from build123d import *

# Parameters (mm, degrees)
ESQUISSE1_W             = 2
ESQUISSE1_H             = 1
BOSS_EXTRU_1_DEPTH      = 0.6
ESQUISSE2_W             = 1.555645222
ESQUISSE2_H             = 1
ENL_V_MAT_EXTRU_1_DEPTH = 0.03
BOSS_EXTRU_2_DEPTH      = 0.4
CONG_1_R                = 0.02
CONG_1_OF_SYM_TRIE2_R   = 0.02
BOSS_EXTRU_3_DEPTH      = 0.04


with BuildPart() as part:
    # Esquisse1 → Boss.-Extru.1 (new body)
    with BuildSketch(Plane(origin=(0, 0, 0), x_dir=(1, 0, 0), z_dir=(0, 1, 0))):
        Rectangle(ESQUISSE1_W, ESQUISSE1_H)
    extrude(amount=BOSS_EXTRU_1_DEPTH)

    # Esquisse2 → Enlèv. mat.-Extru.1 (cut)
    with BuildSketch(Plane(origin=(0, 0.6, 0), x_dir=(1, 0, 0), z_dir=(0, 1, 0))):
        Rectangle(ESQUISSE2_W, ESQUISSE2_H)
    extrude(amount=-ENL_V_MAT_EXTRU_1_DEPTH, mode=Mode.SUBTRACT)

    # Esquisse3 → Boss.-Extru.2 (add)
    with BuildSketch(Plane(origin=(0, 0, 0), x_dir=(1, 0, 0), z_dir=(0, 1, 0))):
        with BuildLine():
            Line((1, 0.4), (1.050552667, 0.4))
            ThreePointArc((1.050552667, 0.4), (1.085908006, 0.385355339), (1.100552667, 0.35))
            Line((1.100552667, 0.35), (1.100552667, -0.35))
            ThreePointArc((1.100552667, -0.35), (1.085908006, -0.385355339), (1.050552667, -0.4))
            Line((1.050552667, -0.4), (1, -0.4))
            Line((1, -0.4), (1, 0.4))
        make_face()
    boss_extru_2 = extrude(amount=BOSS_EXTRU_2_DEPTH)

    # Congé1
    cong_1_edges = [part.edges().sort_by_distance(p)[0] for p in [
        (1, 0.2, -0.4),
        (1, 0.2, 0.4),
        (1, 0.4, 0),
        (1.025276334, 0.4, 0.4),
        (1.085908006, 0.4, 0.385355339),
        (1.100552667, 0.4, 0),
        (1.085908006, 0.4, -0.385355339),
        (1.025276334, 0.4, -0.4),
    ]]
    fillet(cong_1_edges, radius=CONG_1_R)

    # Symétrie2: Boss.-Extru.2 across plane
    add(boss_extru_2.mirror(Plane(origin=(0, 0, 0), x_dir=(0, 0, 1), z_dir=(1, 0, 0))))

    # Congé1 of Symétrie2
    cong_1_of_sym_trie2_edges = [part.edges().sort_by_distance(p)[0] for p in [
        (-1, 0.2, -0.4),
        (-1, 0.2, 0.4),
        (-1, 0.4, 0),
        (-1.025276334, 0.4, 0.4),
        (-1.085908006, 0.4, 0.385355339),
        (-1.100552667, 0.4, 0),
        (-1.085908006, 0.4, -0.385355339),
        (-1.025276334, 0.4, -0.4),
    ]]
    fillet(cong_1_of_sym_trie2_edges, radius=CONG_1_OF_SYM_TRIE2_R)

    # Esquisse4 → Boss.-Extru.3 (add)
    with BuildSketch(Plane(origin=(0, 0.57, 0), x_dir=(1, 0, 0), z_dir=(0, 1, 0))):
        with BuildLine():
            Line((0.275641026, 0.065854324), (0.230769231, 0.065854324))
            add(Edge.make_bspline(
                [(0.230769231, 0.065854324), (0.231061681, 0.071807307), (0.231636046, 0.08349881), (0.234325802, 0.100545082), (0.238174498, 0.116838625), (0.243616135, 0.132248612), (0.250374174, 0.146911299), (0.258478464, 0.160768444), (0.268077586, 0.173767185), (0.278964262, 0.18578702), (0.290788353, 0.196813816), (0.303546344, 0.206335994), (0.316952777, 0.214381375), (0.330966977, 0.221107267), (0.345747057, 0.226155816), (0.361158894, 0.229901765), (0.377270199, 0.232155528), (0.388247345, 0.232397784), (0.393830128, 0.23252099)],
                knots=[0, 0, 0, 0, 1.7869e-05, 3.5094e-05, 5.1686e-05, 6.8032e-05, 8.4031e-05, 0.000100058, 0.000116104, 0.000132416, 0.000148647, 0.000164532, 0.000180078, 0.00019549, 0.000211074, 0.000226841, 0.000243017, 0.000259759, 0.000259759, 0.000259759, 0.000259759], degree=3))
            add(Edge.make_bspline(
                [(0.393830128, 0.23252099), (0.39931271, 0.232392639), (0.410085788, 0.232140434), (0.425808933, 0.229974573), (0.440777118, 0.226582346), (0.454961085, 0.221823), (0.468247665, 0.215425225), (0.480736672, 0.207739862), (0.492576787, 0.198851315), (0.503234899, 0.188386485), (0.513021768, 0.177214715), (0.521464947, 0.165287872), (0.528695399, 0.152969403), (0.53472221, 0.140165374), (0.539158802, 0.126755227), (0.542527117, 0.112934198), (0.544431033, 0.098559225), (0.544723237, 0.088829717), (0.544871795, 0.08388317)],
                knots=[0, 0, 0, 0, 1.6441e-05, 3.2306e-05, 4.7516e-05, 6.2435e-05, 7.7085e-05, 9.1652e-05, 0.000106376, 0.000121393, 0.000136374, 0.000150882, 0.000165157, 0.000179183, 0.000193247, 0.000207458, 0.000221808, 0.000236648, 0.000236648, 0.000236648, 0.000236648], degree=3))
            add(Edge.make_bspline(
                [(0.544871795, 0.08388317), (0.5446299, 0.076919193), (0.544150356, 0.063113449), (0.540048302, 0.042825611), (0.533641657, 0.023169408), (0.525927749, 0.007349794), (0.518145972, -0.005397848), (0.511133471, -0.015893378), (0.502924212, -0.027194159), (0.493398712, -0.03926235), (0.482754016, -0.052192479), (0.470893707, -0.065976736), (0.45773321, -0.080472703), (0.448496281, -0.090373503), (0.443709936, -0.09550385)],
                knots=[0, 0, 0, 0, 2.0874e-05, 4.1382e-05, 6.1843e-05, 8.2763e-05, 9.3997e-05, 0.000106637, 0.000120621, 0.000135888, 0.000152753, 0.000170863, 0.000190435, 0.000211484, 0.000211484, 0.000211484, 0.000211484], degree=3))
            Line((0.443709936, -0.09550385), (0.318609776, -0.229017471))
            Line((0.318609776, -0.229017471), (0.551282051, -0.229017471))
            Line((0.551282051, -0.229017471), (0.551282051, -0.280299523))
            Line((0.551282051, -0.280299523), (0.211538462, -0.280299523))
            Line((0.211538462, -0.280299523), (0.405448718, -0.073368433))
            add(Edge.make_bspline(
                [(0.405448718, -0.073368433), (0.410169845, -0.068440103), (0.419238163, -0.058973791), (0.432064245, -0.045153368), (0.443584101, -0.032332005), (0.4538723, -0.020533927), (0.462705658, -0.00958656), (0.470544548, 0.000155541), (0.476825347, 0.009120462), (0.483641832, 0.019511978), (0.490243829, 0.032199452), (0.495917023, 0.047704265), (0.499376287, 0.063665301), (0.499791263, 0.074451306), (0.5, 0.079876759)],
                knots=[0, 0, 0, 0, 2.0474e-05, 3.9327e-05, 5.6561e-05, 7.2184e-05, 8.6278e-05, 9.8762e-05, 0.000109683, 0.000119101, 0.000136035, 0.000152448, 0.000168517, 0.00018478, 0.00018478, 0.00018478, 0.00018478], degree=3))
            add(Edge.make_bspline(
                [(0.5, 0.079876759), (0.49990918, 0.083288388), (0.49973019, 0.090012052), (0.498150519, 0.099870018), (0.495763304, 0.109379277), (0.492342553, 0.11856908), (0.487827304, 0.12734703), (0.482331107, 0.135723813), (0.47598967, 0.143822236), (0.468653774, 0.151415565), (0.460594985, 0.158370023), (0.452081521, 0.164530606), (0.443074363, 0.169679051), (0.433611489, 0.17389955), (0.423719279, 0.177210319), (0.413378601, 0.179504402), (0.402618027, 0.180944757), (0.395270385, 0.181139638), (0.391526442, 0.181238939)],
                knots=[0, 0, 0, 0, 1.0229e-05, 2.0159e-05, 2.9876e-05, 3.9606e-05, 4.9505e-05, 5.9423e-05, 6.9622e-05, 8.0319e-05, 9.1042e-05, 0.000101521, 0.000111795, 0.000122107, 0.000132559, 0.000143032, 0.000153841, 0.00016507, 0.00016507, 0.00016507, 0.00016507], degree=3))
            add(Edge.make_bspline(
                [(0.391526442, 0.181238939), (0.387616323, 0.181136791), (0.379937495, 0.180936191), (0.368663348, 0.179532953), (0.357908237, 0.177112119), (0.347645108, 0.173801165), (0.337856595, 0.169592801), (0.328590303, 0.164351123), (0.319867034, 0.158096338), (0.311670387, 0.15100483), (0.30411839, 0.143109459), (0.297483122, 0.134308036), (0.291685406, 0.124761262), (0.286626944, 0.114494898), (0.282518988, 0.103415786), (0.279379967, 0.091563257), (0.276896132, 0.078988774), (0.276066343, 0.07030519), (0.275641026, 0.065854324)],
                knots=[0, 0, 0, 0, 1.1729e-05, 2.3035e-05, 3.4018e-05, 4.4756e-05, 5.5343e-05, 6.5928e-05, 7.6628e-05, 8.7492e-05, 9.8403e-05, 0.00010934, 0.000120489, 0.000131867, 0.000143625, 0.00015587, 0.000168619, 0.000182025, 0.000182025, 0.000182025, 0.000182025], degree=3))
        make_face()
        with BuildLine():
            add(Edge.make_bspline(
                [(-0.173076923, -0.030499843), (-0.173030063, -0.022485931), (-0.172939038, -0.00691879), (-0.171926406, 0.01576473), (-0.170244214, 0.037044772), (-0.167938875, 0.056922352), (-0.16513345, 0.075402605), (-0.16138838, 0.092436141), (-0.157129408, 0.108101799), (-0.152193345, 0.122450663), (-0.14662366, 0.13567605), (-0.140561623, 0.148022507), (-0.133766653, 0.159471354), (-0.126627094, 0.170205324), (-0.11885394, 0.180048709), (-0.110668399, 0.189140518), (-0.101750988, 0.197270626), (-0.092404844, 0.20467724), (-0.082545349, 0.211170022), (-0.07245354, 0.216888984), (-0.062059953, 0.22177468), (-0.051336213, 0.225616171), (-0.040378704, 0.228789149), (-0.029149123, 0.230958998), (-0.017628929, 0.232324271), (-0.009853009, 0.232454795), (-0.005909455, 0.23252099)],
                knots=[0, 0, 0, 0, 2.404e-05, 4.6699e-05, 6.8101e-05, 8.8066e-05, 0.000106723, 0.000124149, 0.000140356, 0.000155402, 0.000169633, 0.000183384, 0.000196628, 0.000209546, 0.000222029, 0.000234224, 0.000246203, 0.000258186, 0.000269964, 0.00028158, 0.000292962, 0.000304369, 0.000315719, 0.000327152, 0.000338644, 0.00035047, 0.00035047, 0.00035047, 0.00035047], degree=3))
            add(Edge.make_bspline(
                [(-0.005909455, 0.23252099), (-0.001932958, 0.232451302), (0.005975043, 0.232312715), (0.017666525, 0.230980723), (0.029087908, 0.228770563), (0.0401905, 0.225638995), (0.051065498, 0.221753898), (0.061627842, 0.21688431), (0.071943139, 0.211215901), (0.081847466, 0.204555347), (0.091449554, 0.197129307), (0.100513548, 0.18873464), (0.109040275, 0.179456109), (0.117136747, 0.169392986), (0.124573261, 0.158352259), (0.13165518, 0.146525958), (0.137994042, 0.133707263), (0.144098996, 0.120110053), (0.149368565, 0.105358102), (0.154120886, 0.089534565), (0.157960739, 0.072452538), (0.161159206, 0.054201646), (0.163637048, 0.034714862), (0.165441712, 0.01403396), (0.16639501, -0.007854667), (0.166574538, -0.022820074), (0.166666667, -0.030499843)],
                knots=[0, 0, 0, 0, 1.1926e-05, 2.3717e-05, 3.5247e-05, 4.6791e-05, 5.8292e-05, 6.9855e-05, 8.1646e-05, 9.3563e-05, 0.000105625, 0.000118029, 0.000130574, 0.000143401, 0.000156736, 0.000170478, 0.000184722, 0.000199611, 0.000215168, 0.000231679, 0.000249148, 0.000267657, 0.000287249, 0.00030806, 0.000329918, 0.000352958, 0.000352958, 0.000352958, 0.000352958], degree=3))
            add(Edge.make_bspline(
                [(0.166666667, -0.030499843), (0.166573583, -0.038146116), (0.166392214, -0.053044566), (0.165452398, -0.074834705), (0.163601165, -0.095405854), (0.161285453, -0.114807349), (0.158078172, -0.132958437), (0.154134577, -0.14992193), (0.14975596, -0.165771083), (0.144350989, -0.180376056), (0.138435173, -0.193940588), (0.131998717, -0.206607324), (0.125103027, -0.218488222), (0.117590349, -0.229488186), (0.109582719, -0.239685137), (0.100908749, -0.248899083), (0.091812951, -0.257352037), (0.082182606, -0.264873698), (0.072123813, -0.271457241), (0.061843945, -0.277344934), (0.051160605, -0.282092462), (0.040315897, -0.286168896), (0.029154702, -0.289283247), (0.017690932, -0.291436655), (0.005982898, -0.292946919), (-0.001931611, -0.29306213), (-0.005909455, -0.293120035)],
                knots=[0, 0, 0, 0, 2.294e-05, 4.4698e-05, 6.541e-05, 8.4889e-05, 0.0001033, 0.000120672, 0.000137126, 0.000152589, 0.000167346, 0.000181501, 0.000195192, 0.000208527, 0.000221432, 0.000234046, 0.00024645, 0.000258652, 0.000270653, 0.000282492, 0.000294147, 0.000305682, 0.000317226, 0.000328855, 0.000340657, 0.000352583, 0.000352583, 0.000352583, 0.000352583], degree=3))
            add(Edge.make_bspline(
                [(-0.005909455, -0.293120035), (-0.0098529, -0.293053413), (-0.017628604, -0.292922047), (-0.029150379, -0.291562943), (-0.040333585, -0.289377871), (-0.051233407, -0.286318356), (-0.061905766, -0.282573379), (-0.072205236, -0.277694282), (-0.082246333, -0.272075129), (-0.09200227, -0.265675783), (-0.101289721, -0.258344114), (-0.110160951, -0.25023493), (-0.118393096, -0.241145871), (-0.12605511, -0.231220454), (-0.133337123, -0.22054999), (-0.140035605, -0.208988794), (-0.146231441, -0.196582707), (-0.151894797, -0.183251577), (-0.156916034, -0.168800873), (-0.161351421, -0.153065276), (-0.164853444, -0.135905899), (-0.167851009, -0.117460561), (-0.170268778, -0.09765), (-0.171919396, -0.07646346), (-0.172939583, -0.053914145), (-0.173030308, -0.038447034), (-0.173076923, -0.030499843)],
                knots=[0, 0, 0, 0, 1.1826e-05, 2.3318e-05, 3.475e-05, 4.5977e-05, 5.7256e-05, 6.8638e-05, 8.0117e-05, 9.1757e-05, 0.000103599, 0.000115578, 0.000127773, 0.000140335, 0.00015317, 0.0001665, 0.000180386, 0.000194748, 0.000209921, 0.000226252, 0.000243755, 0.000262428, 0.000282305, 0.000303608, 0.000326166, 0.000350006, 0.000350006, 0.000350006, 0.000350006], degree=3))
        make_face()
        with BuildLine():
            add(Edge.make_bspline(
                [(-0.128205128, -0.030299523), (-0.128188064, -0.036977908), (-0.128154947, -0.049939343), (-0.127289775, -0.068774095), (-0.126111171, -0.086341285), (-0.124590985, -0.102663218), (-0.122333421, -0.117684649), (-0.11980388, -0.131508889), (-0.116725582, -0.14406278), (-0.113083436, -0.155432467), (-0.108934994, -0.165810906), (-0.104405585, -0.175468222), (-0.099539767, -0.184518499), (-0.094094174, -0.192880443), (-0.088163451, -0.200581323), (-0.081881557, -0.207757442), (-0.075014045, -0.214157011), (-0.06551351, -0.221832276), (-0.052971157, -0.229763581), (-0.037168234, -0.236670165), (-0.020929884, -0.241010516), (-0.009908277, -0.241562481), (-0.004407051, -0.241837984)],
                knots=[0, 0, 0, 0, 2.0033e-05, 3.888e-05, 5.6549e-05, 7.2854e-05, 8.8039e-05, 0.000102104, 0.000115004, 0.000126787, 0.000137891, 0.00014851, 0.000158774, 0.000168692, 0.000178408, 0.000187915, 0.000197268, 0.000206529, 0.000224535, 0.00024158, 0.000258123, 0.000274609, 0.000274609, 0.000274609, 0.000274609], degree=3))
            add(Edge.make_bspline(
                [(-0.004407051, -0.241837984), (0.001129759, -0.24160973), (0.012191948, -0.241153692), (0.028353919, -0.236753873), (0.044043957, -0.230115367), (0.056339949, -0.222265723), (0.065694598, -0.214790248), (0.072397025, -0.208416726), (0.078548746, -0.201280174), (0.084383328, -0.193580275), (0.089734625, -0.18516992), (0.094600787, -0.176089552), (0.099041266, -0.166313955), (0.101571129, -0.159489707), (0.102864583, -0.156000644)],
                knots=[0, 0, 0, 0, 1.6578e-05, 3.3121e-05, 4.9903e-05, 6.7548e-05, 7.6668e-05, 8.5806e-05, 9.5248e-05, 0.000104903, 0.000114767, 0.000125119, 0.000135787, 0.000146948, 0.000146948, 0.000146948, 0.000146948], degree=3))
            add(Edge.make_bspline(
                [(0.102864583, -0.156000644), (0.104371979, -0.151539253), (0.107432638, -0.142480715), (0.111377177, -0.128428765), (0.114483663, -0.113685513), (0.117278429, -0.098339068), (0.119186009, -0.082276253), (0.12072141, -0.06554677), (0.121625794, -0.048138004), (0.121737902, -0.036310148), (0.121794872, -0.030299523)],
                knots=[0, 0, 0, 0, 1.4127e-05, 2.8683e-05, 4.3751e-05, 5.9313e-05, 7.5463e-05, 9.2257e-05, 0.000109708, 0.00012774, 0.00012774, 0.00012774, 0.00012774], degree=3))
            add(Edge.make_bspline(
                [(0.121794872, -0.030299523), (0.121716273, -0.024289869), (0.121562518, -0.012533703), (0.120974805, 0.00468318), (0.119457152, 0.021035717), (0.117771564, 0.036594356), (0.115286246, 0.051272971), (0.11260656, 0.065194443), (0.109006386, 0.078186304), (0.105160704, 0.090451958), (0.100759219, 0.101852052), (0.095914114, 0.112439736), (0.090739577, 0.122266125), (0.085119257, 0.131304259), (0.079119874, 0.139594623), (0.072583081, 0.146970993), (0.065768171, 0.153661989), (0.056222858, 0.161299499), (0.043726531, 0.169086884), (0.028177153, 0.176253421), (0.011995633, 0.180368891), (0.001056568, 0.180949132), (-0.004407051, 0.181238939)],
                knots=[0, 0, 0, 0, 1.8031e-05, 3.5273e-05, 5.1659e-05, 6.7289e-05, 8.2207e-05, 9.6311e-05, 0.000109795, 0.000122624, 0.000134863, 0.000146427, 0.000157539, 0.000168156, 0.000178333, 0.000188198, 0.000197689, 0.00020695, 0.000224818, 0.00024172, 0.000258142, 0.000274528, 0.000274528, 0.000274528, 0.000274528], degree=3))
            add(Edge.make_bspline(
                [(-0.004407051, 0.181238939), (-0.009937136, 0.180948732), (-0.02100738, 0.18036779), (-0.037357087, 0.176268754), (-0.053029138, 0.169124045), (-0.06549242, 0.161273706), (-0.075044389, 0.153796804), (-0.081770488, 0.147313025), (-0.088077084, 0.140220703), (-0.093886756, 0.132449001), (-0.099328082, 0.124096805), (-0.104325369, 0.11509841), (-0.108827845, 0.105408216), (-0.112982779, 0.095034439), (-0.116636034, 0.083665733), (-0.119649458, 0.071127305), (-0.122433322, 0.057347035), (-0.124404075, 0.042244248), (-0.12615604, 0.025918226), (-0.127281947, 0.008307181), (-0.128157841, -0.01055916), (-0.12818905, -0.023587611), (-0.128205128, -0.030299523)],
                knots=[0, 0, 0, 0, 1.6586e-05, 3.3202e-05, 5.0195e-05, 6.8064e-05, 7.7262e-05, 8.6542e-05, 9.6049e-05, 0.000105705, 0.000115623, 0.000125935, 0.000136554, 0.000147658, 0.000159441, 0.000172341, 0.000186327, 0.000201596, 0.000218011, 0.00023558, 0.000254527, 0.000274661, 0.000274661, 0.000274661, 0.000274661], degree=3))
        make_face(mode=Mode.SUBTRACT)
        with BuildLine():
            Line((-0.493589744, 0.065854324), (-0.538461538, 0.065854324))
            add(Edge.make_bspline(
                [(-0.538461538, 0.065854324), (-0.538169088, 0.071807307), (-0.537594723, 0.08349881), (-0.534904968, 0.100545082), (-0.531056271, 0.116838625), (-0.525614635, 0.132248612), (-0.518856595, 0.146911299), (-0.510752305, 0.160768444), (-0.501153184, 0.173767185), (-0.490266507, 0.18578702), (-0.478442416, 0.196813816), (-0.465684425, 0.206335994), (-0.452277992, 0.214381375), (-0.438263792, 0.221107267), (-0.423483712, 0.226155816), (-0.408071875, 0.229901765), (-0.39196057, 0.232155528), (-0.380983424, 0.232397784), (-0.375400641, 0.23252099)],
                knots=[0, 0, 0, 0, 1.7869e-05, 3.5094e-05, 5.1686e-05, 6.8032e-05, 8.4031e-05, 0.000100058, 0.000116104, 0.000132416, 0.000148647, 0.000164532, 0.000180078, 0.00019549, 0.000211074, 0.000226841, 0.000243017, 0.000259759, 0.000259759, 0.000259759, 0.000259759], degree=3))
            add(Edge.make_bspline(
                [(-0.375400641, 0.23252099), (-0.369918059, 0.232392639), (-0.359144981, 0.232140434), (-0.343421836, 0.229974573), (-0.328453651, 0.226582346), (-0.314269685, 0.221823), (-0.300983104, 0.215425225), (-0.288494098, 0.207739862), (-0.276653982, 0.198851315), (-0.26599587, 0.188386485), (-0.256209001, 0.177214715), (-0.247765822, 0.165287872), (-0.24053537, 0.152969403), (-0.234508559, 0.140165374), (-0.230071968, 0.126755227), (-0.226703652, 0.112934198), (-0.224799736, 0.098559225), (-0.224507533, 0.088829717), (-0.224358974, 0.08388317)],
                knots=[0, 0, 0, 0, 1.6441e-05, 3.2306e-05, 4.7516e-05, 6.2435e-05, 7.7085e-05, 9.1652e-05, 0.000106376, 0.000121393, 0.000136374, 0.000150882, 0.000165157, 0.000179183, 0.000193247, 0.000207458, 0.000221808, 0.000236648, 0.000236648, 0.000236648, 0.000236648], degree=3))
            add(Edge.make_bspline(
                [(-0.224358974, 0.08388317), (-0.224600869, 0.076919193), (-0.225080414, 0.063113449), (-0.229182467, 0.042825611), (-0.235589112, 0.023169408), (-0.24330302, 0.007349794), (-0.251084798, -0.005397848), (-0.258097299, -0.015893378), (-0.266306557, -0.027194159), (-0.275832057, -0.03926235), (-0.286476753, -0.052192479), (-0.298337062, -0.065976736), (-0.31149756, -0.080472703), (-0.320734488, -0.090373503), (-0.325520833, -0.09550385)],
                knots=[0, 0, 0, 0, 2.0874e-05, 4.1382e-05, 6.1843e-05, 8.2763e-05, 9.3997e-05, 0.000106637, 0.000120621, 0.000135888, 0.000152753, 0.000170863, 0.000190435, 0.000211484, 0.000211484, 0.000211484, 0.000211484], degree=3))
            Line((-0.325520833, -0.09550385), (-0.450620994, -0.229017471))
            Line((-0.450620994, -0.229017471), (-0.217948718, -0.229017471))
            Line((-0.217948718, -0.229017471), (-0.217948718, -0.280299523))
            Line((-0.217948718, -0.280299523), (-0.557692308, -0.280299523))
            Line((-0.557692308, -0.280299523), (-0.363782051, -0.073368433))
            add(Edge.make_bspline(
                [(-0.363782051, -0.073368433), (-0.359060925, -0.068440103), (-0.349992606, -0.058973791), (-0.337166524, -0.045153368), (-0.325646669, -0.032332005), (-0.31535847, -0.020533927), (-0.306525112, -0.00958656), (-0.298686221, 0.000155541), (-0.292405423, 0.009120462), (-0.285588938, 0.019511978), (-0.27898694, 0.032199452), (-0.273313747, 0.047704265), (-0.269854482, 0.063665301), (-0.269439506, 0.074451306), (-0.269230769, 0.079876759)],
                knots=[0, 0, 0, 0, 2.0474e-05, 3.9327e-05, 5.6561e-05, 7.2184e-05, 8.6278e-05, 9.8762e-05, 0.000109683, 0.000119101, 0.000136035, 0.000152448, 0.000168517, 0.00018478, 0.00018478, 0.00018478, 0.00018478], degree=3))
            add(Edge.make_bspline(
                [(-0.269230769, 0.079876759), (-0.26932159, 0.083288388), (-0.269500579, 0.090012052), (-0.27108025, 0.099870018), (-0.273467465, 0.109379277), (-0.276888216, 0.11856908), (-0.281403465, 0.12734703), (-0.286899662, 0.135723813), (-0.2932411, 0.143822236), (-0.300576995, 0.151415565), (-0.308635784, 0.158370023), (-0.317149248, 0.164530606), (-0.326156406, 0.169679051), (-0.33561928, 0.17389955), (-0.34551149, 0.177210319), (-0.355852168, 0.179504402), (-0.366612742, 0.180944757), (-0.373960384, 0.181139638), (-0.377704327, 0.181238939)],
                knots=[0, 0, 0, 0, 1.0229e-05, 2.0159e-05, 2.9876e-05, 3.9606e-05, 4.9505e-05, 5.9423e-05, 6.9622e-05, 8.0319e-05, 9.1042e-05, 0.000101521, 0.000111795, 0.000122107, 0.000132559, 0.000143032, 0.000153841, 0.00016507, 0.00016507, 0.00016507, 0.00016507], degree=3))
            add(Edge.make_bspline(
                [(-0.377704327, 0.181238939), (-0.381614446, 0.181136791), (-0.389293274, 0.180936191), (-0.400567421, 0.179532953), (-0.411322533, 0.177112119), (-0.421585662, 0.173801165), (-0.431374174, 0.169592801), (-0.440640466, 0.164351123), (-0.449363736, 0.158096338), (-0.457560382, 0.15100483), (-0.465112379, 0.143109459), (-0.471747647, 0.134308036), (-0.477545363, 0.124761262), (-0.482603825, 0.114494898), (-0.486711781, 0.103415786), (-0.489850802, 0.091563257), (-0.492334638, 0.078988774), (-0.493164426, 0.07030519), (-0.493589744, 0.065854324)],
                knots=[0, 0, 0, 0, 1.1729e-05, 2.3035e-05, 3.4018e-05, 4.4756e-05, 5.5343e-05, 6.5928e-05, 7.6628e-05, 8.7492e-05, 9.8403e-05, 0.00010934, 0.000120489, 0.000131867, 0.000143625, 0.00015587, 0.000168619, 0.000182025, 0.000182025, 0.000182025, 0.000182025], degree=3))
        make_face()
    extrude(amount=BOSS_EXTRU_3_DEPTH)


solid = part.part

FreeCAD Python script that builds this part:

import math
import FreeCAD as App
import Part
import Sketcher

V = App.Vector
Q = App.Units.Quantity


def edges_at(feature, points):
    """Names of the edges that pass closest to the given points."""
    edges = feature.Shape.Edges
    near = lambda p: min(range(len(edges)), key=lambda i: edges[i].distToShape(Part.Vertex(*p))[0])
    return sorted({f"Edge{near(p) + 1}" for p in points})


def add_polygon(sketch, points):
    """Adds a closed chain of lines whose ends are joined by coincident constraints."""
    first, n = sketch.GeometryCount, len(points)
    for a, b in zip(points, points[1:] + points[:1]):
        sketch.addGeometry(Part.LineSegment(App.Vector(*a, 0), App.Vector(*b, 0)), False)
    for i in range(n):
        sketch.addConstraint(Sketcher.Constraint("Coincident", first + i, 2, first + (i + 1) % n, 1))

doc = App.newDocument("Part")
body = doc.addObject("PartDesign::Body", "Body")

# Sketch on XZ plane
sketch1 = body.newObject("Sketcher::SketchObject", "Sketch")
sketch1.AttachmentSupport = (doc.getObject("XZ_Plane"), [""])
sketch1.MapMode = "FlatFace"
add_polygon(sketch1, [(-1, -0.5), (-1, 0.5), (1, 0.5), (1, -0.5)])  # lines 0-3
sketch1.addConstraint(Sketcher.Constraint("Vertical", 0))
sketch1.addConstraint(Sketcher.Constraint("Horizontal", 1))
sketch1.addConstraint(Sketcher.Constraint("Vertical", 2))
sketch1.addConstraint(Sketcher.Constraint("Horizontal", 3))
sketch1.addConstraint(Sketcher.Constraint("Symmetric", 0, 2, 2, 2, -1, 1))
sketch1.addConstraint(Sketcher.Constraint("DistanceX", 1, 1, 1, 2, Q("2 mm")))
sketch1.addConstraint(Sketcher.Constraint("DistanceY", 0, 1, 0, 2, Q("1 mm")))
pad1 = body.newObject("PartDesign::Pad", "Pad")
pad1.Profile = sketch1
pad1.Length = 0.6
pad1.Reversed = True

# Sketch on XZ plane
sketch2 = body.newObject("Sketcher::SketchObject", "Sketch001")
sketch2.AttachmentSupport = (doc.getObject("XZ_Plane"), [""])
sketch2.MapMode = "FlatFace"
sketch2.AttachmentOffset = App.Placement(V(0, 0, -0.6), App.Rotation())
add_polygon(sketch2, [(-0.777823, -0.5), (-0.777823, 0.5), (0.777823, 0.5), (0.777823, -0.5)])  # lines 0-3
sketch2.addConstraint(Sketcher.Constraint("Vertical", 0))
sketch2.addConstraint(Sketcher.Constraint("Horizontal", 1))
sketch2.addConstraint(Sketcher.Constraint("Vertical", 2))
sketch2.addConstraint(Sketcher.Constraint("Horizontal", 3))
sketch2.addConstraint(Sketcher.Constraint("Symmetric", 0, 2, 2, 2, -1, 1))
sketch2.addConstraint(Sketcher.Constraint("DistanceY", 0, 1, 0, 2, Q("1 mm")))
sketch2.addConstraint(Sketcher.Constraint("DistanceX", 1, 1, 1, 2, Q("1.555645 mm")))
pocket1 = body.newObject("PartDesign::Pocket", "Pocket")
pocket1.Profile = sketch2
pocket1.Length = 0.03
pocket1.Reversed = True

# Sketch on XZ plane
sketch3 = body.newObject("Sketcher::SketchObject", "Sketch002")
sketch3.AttachmentSupport = (doc.getObject("XZ_Plane"), [""])
sketch3.MapMode = "FlatFace"
sketch3.addGeometry(Part.LineSegment(V(1.050553, -0.4, 0), V(1, -0.4, 0)), False)
sketch3.addGeometry(Part.LineSegment(V(1, -0.4, 0), V(1, 0.4, 0)), False)
sketch3.addGeometry(Part.LineSegment(V(1, 0.4, 0), V(1.050553, 0.4, 0)), False)
sketch3.addGeometry(Part.ArcOfCircle(Part.Circle(V(1.050553, 0.35, 0), V(0, 0, 1), 0.05), math.radians(0), math.radians(90)), False)
sketch3.addGeometry(Part.LineSegment(V(1.100553, 0.35, 0), V(1.100553, -0.35, 0)), False)
sketch3.addGeometry(Part.ArcOfCircle(Part.Circle(V(1.050553, -0.35, 0), V(0, 0, 1), 0.05), math.radians(-90), math.radians(0)), False)
sketch3.addConstraint(Sketcher.Constraint("Coincident", 0, 2, 1, 1))
sketch3.addConstraint(Sketcher.Constraint("Coincident", 1, 2, 2, 1))
sketch3.addConstraint(Sketcher.Constraint("Tangent", 2, 2, 3, 2))
sketch3.addConstraint(Sketcher.Constraint("Tangent", 3, 1, 4, 1))
sketch3.addConstraint(Sketcher.Constraint("Tangent", 4, 2, 5, 2))
sketch3.addConstraint(Sketcher.Constraint("Tangent", 5, 1, 0, 1))
sketch3.addConstraint(Sketcher.Constraint("Horizontal", 0))
sketch3.addConstraint(Sketcher.Constraint("Vertical", 1))
sketch3.addConstraint(Sketcher.Constraint("Horizontal", 2))
sketch3.addConstraint(Sketcher.Constraint("Vertical", 4))
sketch3.addConstraint(Sketcher.Constraint("Equal", 3, 5))
sketch3.addConstraint(Sketcher.Constraint("Radius", 3, Q("0.05 mm")))
sketch3.addConstraint(Sketcher.Constraint("DistanceY", 1, 1, 1, 2, Q("0.8 mm")))
sketch3.addConstraint(Sketcher.Constraint("DistanceX", -1, 1, 0, 2, Q("1 mm")))
sketch3.addConstraint(Sketcher.Constraint("DistanceY", 0, 2, -1, 1, Q("0.4 mm")))
sketch3.addConstraint(Sketcher.Constraint("DistanceX", 0, 2, 0, 1, Q("0.050553 mm")))
pad2 = body.newObject("PartDesign::Pad", "Pad001")
pad2.Profile = sketch3
pad2.Length = 0.4
pad2.Reversed = True
doc.recompute()

fillet = body.newObject("PartDesign::Fillet", "Fillet")
fillet.Base = (pad2, edges_at(pad2, [
    (1, 0.2, -0.4),
    (1, 0.2, 0.4),
    (1, 0.4, 0),
    (1.025, 0.4, 0.4),
    (1.086, 0.4, 0.385),
    (1.101, 0.4, 0),
    (1.086, 0.4, -0.385),
    (1.025, 0.4, -0.4),
]))
fillet.Radius = 0.02
doc.recompute()

mirrored = body.newObject("PartDesign::Mirrored", "Mirrored")
mirrored.Originals = [pad2]
mirrored.MirrorPlane = (doc.getObject("YZ_Plane"), [""])
body.Tip = mirrored
doc.recompute()

fillet2 = body.newObject("PartDesign::Fillet", "Fillet001")
fillet2.Base = (mirrored, edges_at(mirrored, [
    (-1, 0.2, -0.4),
    (-1, 0.2, 0.4),
    (-1, 0.4, 0),
    (-1.025, 0.4, 0.4),
    (-1.086, 0.4, 0.385),
    (-1.101, 0.4, 0),
    (-1.086, 0.4, -0.385),
    (-1.025, 0.4, -0.4),
]))
fillet2.Radius = 0.02

# Sketch on XZ plane
sketch4 = body.newObject("Sketcher::SketchObject", "Sketch003")
sketch4.AttachmentSupport = (doc.getObject("XZ_Plane"), [""])
sketch4.MapMode = "FlatFace"
sketch4.AttachmentOffset = App.Placement(V(0, 0, -0.57), App.Rotation())
sketch4.addGeometry(Part.LineSegment(V(0.230769, -0.065854, 0), V(0.275641, -0.065854, 0)), False)
sketch4.addGeometry(Part.BSplineCurve([V(0.391526, -0.181239, 0), V(0.387616, -0.181137, 0), V(0.379937, -0.180936, 0), V(0.368663, -0.179533, 0), V(0.357908, -0.177112, 0), V(0.347645, -0.173801, 0), V(0.337857, -0.169593, 0), V(0.32859, -0.164351, 0), V(0.319867, -0.158096, 0), V(0.31167, -0.151005, 0), V(0.304118, -0.143109, 0), V(0.297483, -0.134308, 0), V(0.291685, -0.124761, 0), V(0.286627, -0.114495, 0), V(0.282519, -0.103416, 0), V(0.27938, -0.091563, 0), V(0.276896, -0.078989, 0), V(0.276066, -0.070305, 0), V(0.275641, -0.065854, 0)], [4, 1, 1, 1, 1, 1, 1, 1, 1, 1, 1, 1, 1, 1, 1, 1, 4], [0, 0.000011729, 0.000023035, 0.000034018, 0.000044756, 0.000055343, 0.000065928, 0.000076628, 0.000087492, 0.000098403, 0.00010934, 0.000120489, 0.000131867, 0.000143625, 0.00015587, 0.000168619, 0.000182025], False, 3, [1, 1, 1, 1, 1, 1, 1, 1, 1, 1, 1, 1, 1, 1, 1, 1, 1, 1, 1], False), False)
sketch4.addGeometry(Part.BSplineCurve([V(0.5, -0.079877, 0), V(0.499909, -0.083288, 0), V(0.49973, -0.090012, 0), V(0.498151, -0.09987, 0), V(0.495763, -0.109379, 0), V(0.492343, -0.118569, 0), V(0.487827, -0.127347, 0), V(0.482331, -0.135724, 0), V(0.47599, -0.143822, 0), V(0.468654, -0.151416, 0), V(0.460595, -0.15837, 0), V(0.452082, -0.164531, 0), V(0.443074, -0.169679, 0), V(0.433611, -0.1739, 0), V(0.423719, -0.17721, 0), V(0.413379, -0.179504, 0), V(0.402618, -0.180945, 0), V(0.39527, -0.18114, 0), V(0.391526, -0.181239, 0)], [4, 1, 1, 1, 1, 1, 1, 1, 1, 1, 1, 1, 1, 1, 1, 1, 4], [0, 0.000010229, 0.000020159, 0.000029876, 0.000039606, 0.000049505, 0.000059423, 0.000069622, 0.000080319, 0.000091042, 0.000101521, 0.000111795, 0.000122107, 0.000132559, 0.000143032, 0.000153841, 0.00016507], False, 3, [1, 1, 1, 1, 1, 1, 1, 1, 1, 1, 1, 1, 1, 1, 1, 1, 1, 1, 1], False), False)
sketch4.addGeometry(Part.BSplineCurve([V(0.405449, 0.073368, 0), V(0.41017, 0.06844, 0), V(0.419238, 0.058974, 0), V(0.432064, 0.045153, 0), V(0.443584, 0.032332, 0), V(0.453872, 0.020534, 0), V(0.462706, 0.009587, 0), V(0.470545, -0.000156, 0), V(0.476825, -0.00912, 0), V(0.483642, -0.019512, 0), V(0.490244, -0.032199, 0), V(0.495917, -0.047704, 0), V(0.499376, -0.063665, 0), V(0.499791, -0.074451, 0), V(0.5, -0.079877, 0)], [4, 1, 1, 1, 1, 1, 1, 1, 1, 1, 1, 1, 4], [0, 0.000020474, 0.000039327, 0.000056561, 0.000072184, 0.000086278, 0.000098762, 0.000109683, 0.000119101, 0.000136035, 0.000152448, 0.000168517, 0.00018478], False, 3, [1, 1, 1, 1, 1, 1, 1, 1, 1, 1, 1, 1, 1, 1, 1], False), False)
sketch4.addGeometry(Part.LineSegment(V(0.405449, 0.073368, 0), V(0.211538, 0.2803, 0)), False)
sketch4.addGeometry(Part.LineSegment(V(0.211538, 0.2803, 0), V(0.551282, 0.2803, 0)), False)
sketch4.addGeometry(Part.LineSegment(V(0.551282, 0.2803, 0), V(0.551282, 0.229017, 0)), False)
sketch4.addGeometry(Part.LineSegment(V(0.551282, 0.229017, 0), V(0.31861, 0.229017, 0)), False)
sketch4.addGeometry(Part.LineSegment(V(0.31861, 0.229017, 0), V(0.44371, 0.095504, 0)), False)
sketch4.addGeometry(Part.BSplineCurve([V(0.544872, -0.083883, 0), V(0.54463, -0.076919, 0), V(0.54415, -0.063113, 0), V(0.540048, -0.042826, 0), V(0.533642, -0.023169, 0), V(0.525928, -0.00735, 0), V(0.518146, 0.005398, 0), V(0.511133, 0.015893, 0), V(0.502924, 0.027194, 0), V(0.493399, 0.039262, 0), V(0.482754, 0.052192, 0), V(0.470894, 0.065977, 0), V(0.457733, 0.080473, 0), V(0.448496, 0.090374, 0), V(0.44371, 0.095504, 0)], [4, 1, 1, 1, 1, 1, 1, 1, 1, 1, 1, 1, 4], [0, 0.000020874, 0.000041382, 0.000061843, 0.000082763, 0.000093997, 0.000106637, 0.000120621, 0.000135888, 0.000152753, 0.000170863, 0.000190435, 0.000211484], False, 3, [1, 1, 1, 1, 1, 1, 1, 1, 1, 1, 1, 1, 1, 1, 1], False), False)
sketch4.addGeometry(Part.BSplineCurve([V(0.39383, -0.232521, 0), V(0.399313, -0.232393, 0), V(0.410086, -0.23214, 0), V(0.425809, -0.229975, 0), V(0.440777, -0.226582, 0), V(0.454961, -0.221823, 0), V(0.468248, -0.215425, 0), V(0.480737, -0.20774, 0), V(0.492577, -0.198851, 0), V(0.503235, -0.188386, 0), V(0.513022, -0.177215, 0), V(0.521465, -0.165288, 0), V(0.528695, -0.152969, 0), V(0.534722, -0.140165, 0), V(0.539159, -0.126755, 0), V(0.542527, -0.112934, 0), V(0.544431, -0.098559, 0), V(0.544723, -0.08883, 0), V(0.544872, -0.083883, 0)], [4, 1, 1, 1, 1, 1, 1, 1, 1, 1, 1, 1, 1, 1, 1, 1, 4], [0, 0.000016441, 0.000032306, 0.000047516, 0.000062435, 0.000077085, 0.000091652, 0.000106376, 0.000121393, 0.000136374, 0.000150882, 0.000165157, 0.000179183, 0.000193247, 0.000207458, 0.000221808, 0.000236648], False, 3, [1, 1, 1, 1, 1, 1, 1, 1, 1, 1, 1, 1, 1, 1, 1, 1, 1, 1, 1], False), False)
sketch4.addGeometry(Part.BSplineCurve([V(0.230769, -0.065854, 0), V(0.231062, -0.071807, 0), V(0.231636, -0.083499, 0), V(0.234326, -0.100545, 0), V(0.238174, -0.116839, 0), V(0.243616, -0.132249, 0), V(0.250374, -0.146911, 0), V(0.258478, -0.160768, 0), V(0.268078, -0.173767, 0), V(0.278964, -0.185787, 0), V(0.290788, -0.196814, 0), V(0.303546, -0.206336, 0), V(0.316953, -0.214381, 0), V(0.330967, -0.221107, 0), V(0.345747, -0.226156, 0), V(0.361159, -0.229902, 0), V(0.37727, -0.232156, 0), V(0.388247, -0.232398, 0), V(0.39383, -0.232521, 0)], [4, 1, 1, 1, 1, 1, 1, 1, 1, 1, 1, 1, 1, 1, 1, 1, 4], [0, 0.000017869, 0.000035094, 0.000051686, 0.000068032, 0.000084031, 0.000100058, 0.000116104, 0.000132416, 0.000148647, 0.000164532, 0.000180078, 0.00019549, 0.000211074, 0.000226841, 0.000243017, 0.000259759], False, 3, [1, 1, 1, 1, 1, 1, 1, 1, 1, 1, 1, 1, 1, 1, 1, 1, 1, 1, 1], False), False)
sketch4.addGeometry(Part.BSplineCurve([V(-0.173077, 0.0305, 0), V(-0.17303, 0.022486, 0), V(-0.172939, 0.006919, 0), V(-0.171926, -0.015765, 0), V(-0.170244, -0.037045, 0), V(-0.167939, -0.056922, 0), V(-0.165133, -0.075403, 0), V(-0.161388, -0.092436, 0), V(-0.157129, -0.108102, 0), V(-0.152193, -0.122451, 0), V(-0.146624, -0.135676, 0), V(-0.140562, -0.148023, 0), V(-0.133767, -0.159471, 0), V(-0.126627, -0.170205, 0), V(-0.118854, -0.180049, 0), V(-0.110668, -0.189141, 0), V(-0.101751, -0.197271, 0), V(-0.092405, -0.204677, 0), V(-0.082545, -0.21117, 0), V(-0.072454, -0.216889, 0), V(-0.06206, -0.221775, 0), V(-0.051336, -0.225616, 0), V(-0.040379, -0.228789, 0), V(-0.029149, -0.230959, 0), V(-0.017629, -0.232324, 0), V(-0.009853, -0.232455, 0), V(-0.005909, -0.232521, 0)], [4, 1, 1, 1, 1, 1, 1, 1, 1, 1, 1, 1, 1, 1, 1, 1, 1, 1, 1, 1, 1, 1, 1, 1, 4], [0, 0.00002404, 0.000046699, 0.000068101, 0.000088066, 0.000106723, 0.000124149, 0.000140356, 0.000155402, 0.000169633, 0.000183384, 0.000196628, 0.000209546, 0.000222029, 0.000234224, 0.000246203, 0.000258186, 0.000269964, 0.00028158, 0.000292962, 0.000304369, 0.000315719, 0.000327152, 0.000338644, 0.00035047], False, 3, [1, 1, 1, 1, 1, 1, 1, 1, 1, 1, 1, 1, 1, 1, 1, 1, 1, 1, 1, 1, 1, 1, 1, 1, 1, 1, 1], False), False)
sketch4.addGeometry(Part.BSplineCurve([V(-0.005909, 0.29312, 0), V(-0.009853, 0.293053, 0), V(-0.017629, 0.292922, 0), V(-0.02915, 0.291563, 0), V(-0.040334, 0.289378, 0), V(-0.051233, 0.286318, 0), V(-0.061906, 0.282573, 0), V(-0.072205, 0.277694, 0), V(-0.082246, 0.272075, 0), V(-0.092002, 0.265676, 0), V(-0.10129, 0.258344, 0), V(-0.110161, 0.250235, 0), V(-0.118393, 0.241146, 0), V(-0.126055, 0.23122, 0), V(-0.133337, 0.22055, 0), V(-0.140036, 0.208989, 0), V(-0.146231, 0.196583, 0), V(-0.151895, 0.183252, 0), V(-0.156916, 0.168801, 0), V(-0.161351, 0.153065, 0), V(-0.164853, 0.135906, 0), V(-0.167851, 0.117461, 0), V(-0.170269, 0.09765, 0), V(-0.171919, 0.076463, 0), V(-0.17294, 0.053914, 0), V(-0.17303, 0.038447, 0), V(-0.173077, 0.0305, 0)], [4, 1, 1, 1, 1, 1, 1, 1, 1, 1, 1, 1, 1, 1, 1, 1, 1, 1, 1, 1, 1, 1, 1, 1, 4], [0, 0.000011826, 0.000023318, 0.00003475, 0.000045977, 0.000057256, 0.000068638, 0.000080117, 0.000091757, 0.000103599, 0.000115578, 0.000127773, 0.000140335, 0.00015317, 0.0001665, 0.000180386, 0.000194748, 0.000209921, 0.000226252, 0.000243755, 0.000262428, 0.000282305, 0.000303608, 0.000326166, 0.000350006], False, 3, [1, 1, 1, 1, 1, 1, 1, 1, 1, 1, 1, 1, 1, 1, 1, 1, 1, 1, 1, 1, 1, 1, 1, 1, 1, 1, 1], False), False)
sketch4.addGeometry(Part.BSplineCurve([V(0.166667, 0.0305, 0), V(0.166574, 0.038146, 0), V(0.166392, 0.053045, 0), V(0.165452, 0.074835, 0), V(0.163601, 0.095406, 0), V(0.161285, 0.114807, 0), V(0.158078, 0.132958, 0), V(0.154135, 0.149922, 0), V(0.149756, 0.165771, 0), V(0.144351, 0.180376, 0), V(0.138435, 0.193941, 0), V(0.131999, 0.206607, 0), V(0.125103, 0.218488, 0), V(0.11759, 0.229488, 0), V(0.109583, 0.239685, 0), V(0.100909, 0.248899, 0), V(0.091813, 0.257352, 0), V(0.082183, 0.264874, 0), V(0.072124, 0.271457, 0), V(0.061844, 0.277345, 0), V(0.051161, 0.282092, 0), V(0.040316, 0.286169, 0), V(0.029155, 0.289283, 0), V(0.017691, 0.291437, 0), V(0.005983, 0.292947, 0), V(-0.001932, 0.293062, 0), V(-0.005909, 0.29312, 0)], [4, 1, 1, 1, 1, 1, 1, 1, 1, 1, 1, 1, 1, 1, 1, 1, 1, 1, 1, 1, 1, 1, 1, 1, 4], [0, 0.00002294, 0.000044698, 0.00006541, 0.000084889, 0.0001033, 0.000120672, 0.000137126, 0.000152589, 0.000167346, 0.000181501, 0.000195192, 0.000208527, 0.000221432, 0.000234046, 0.00024645, 0.000258652, 0.000270653, 0.000282492, 0.000294147, 0.000305682, 0.000317226, 0.000328855, 0.000340657, 0.000352583], False, 3, [1, 1, 1, 1, 1, 1, 1, 1, 1, 1, 1, 1, 1, 1, 1, 1, 1, 1, 1, 1, 1, 1, 1, 1, 1, 1, 1], False), False)
sketch4.addGeometry(Part.BSplineCurve([V(-0.005909, -0.232521, 0), V(-0.001933, -0.232451, 0), V(0.005975, -0.232313, 0), V(0.017667, -0.230981, 0), V(0.029088, -0.228771, 0), V(0.04019, -0.225639, 0), V(0.051065, -0.221754, 0), V(0.061628, -0.216884, 0), V(0.071943, -0.211216, 0), V(0.081847, -0.204555, 0), V(0.09145, -0.197129, 0), V(0.100514, -0.188735, 0), V(0.10904, -0.179456, 0), V(0.117137, -0.169393, 0), V(0.124573, -0.158352, 0), V(0.131655, -0.146526, 0), V(0.137994, -0.133707, 0), V(0.144099, -0.12011, 0), V(0.149369, -0.105358, 0), V(0.154121, -0.089535, 0), V(0.157961, -0.072453, 0), V(0.161159, -0.054202, 0), V(0.163637, -0.034715, 0), V(0.165442, -0.014034, 0), V(0.166395, 0.007855, 0), V(0.166575, 0.02282, 0), V(0.166667, 0.0305, 0)], [4, 1, 1, 1, 1, 1, 1, 1, 1, 1, 1, 1, 1, 1, 1, 1, 1, 1, 1, 1, 1, 1, 1, 1, 4], [0, 0.000011926, 0.000023717, 0.000035247, 0.000046791, 0.000058292, 0.000069855, 0.000081646, 0.000093563, 0.000105625, 0.000118029, 0.000130574, 0.000143401, 0.000156736, 0.000170478, 0.000184722, 0.000199611, 0.000215168, 0.000231679, 0.000249148, 0.000267657, 0.000287249, 0.00030806, 0.000329918, 0.000352958], False, 3, [1, 1, 1, 1, 1, 1, 1, 1, 1, 1, 1, 1, 1, 1, 1, 1, 1, 1, 1, 1, 1, 1, 1, 1, 1, 1, 1], False), False)
sketch4.addGeometry(Part.BSplineCurve([V(-0.004407, -0.181239, 0), V(-0.009937, -0.180949, 0), V(-0.021007, -0.180368, 0), V(-0.037357, -0.176269, 0), V(-0.053029, -0.169124, 0), V(-0.065492, -0.161274, 0), V(-0.075044, -0.153797, 0), V(-0.08177, -0.147313, 0), V(-0.088077, -0.140221, 0), V(-0.093887, -0.132449, 0), V(-0.099328, -0.124097, 0), V(-0.104325, -0.115098, 0), V(-0.108828, -0.105408, 0), V(-0.112983, -0.095034, 0), V(-0.116636, -0.083666, 0), V(-0.119649, -0.071127, 0), V(-0.122433, -0.057347, 0), V(-0.124404, -0.042244, 0), V(-0.126156, -0.025918, 0), V(-0.127282, -0.008307, 0), V(-0.128158, 0.010559, 0), V(-0.128189, 0.023588, 0), V(-0.128205, 0.0303, 0)], [4, 1, 1, 1, 1, 1, 1, 1, 1, 1, 1, 1, 1, 1, 1, 1, 1, 1, 1, 1, 4], [0, 0.000016586, 0.000033202, 0.000050195, 0.000068064, 0.000077262, 0.000086542, 0.000096049, 0.000105705, 0.000115623, 0.000125935, 0.000136554, 0.000147658, 0.000159441, 0.000172341, 0.000186327, 0.000201596, 0.000218011, 0.00023558, 0.000254527, 0.000274661], False, 3, [1, 1, 1, 1, 1, 1, 1, 1, 1, 1, 1, 1, 1, 1, 1, 1, 1, 1, 1, 1, 1, 1, 1], False), False)
sketch4.addGeometry(Part.BSplineCurve([V(0.121795, 0.0303, 0), V(0.121716, 0.02429, 0), V(0.121563, 0.012534, 0), V(0.120975, -0.004683, 0), V(0.119457, -0.021036, 0), V(0.117772, -0.036594, 0), V(0.115286, -0.051273, 0), V(0.112607, -0.065194, 0), V(0.109006, -0.078186, 0), V(0.105161, -0.090452, 0), V(0.100759, -0.101852, 0), V(0.095914, -0.11244, 0), V(0.09074, -0.122266, 0), V(0.085119, -0.131304, 0), V(0.07912, -0.139595, 0), V(0.072583, -0.146971, 0), V(0.065768, -0.153662, 0), V(0.056223, -0.161299, 0), V(0.043727, -0.169087, 0), V(0.028177, -0.176253, 0), V(0.011996, -0.180369, 0), V(0.001057, -0.180949, 0), V(-0.004407, -0.181239, 0)], [4, 1, 1, 1, 1, 1, 1, 1, 1, 1, 1, 1, 1, 1, 1, 1, 1, 1, 1, 1, 4], [0, 0.000018031, 0.000035273, 0.000051659, 0.000067289, 0.000082207, 0.000096311, 0.000109795, 0.000122624, 0.000134863, 0.000146427, 0.000157539, 0.000168156, 0.000178333, 0.000188198, 0.000197689, 0.00020695, 0.000224818, 0.00024172, 0.000258142, 0.000274528], False, 3, [1, 1, 1, 1, 1, 1, 1, 1, 1, 1, 1, 1, 1, 1, 1, 1, 1, 1, 1, 1, 1, 1, 1], False), False)
sketch4.addGeometry(Part.BSplineCurve([V(0.102865, 0.156001, 0), V(0.104372, 0.151539, 0), V(0.107433, 0.142481, 0), V(0.111377, 0.128429, 0), V(0.114484, 0.113686, 0), V(0.117278, 0.098339, 0), V(0.119186, 0.082276, 0), V(0.120721, 0.065547, 0), V(0.121626, 0.048138, 0), V(0.121738, 0.03631, 0), V(0.121795, 0.0303, 0)], [4, 1, 1, 1, 1, 1, 1, 1, 4], [0, 0.000014127, 0.000028683, 0.000043751, 0.000059313, 0.000075463, 0.000092257, 0.000109708, 0.00012774], False, 3, [1, 1, 1, 1, 1, 1, 1, 1, 1, 1, 1], False), False)
sketch4.addGeometry(Part.BSplineCurve([V(-0.004407, 0.241838, 0), V(0.00113, 0.24161, 0), V(0.012192, 0.241154, 0), V(0.028354, 0.236754, 0), V(0.044044, 0.230115, 0), V(0.05634, 0.222266, 0), V(0.065695, 0.21479, 0), V(0.072397, 0.208417, 0), V(0.078549, 0.20128, 0), V(0.084383, 0.19358, 0), V(0.089735, 0.18517, 0), V(0.094601, 0.17609, 0), V(0.099041, 0.166314, 0), V(0.101571, 0.15949, 0), V(0.102865, 0.156001, 0)], [4, 1, 1, 1, 1, 1, 1, 1, 1, 1, 1, 1, 4], [0, 0.000016578, 0.000033121, 0.000049903, 0.000067548, 0.000076668, 0.000085806, 0.000095248, 0.000104903, 0.000114767, 0.000125119, 0.000135787, 0.000146948], False, 3, [1, 1, 1, 1, 1, 1, 1, 1, 1, 1, 1, 1, 1, 1, 1], False), False)
sketch4.addGeometry(Part.BSplineCurve([V(-0.128205, 0.0303, 0), V(-0.128188, 0.036978, 0), V(-0.128155, 0.049939, 0), V(-0.12729, 0.068774, 0), V(-0.126111, 0.086341, 0), V(-0.124591, 0.102663, 0), V(-0.122333, 0.117685, 0), V(-0.119804, 0.131509, 0), V(-0.116726, 0.144063, 0), V(-0.113083, 0.155432, 0), V(-0.108935, 0.165811, 0), V(-0.104406, 0.175468, 0), V(-0.09954, 0.184518, 0), V(-0.094094, 0.19288, 0), V(-0.088163, 0.200581, 0), V(-0.081882, 0.207757, 0), V(-0.075014, 0.214157, 0), V(-0.065514, 0.221832, 0), V(-0.052971, 0.229764, 0), V(-0.037168, 0.23667, 0), V(-0.02093, 0.241011, 0), V(-0.009908, 0.241562, 0), V(-0.004407, 0.241838, 0)], [4, 1, 1, 1, 1, 1, 1, 1, 1, 1, 1, 1, 1, 1, 1, 1, 1, 1, 1, 1, 4], [0, 0.000020033, 0.00003888, 0.000056549, 0.000072854, 0.000088039, 0.000102104, 0.000115004, 0.000126787, 0.000137891, 0.00014851, 0.000158774, 0.000168692, 0.000178408, 0.000187915, 0.000197268, 0.000206529, 0.000224535, 0.00024158, 0.000258123, 0.000274609], False, 3, [1, 1, 1, 1, 1, 1, 1, 1, 1, 1, 1, 1, 1, 1, 1, 1, 1, 1, 1, 1, 1, 1, 1], False), False)
sketch4.addGeometry(Part.LineSegment(V(-0.538462, -0.065854, 0), V(-0.49359, -0.065854, 0)), False)
sketch4.addGeometry(Part.BSplineCurve([V(-0.377704, -0.181239, 0), V(-0.381614, -0.181137, 0), V(-0.389293, -0.180936, 0), V(-0.400567, -0.179533, 0), V(-0.411323, -0.177112, 0), V(-0.421586, -0.173801, 0), V(-0.431374, -0.169593, 0), V(-0.44064, -0.164351, 0), V(-0.449364, -0.158096, 0), V(-0.45756, -0.151005, 0), V(-0.465112, -0.143109, 0), V(-0.471748, -0.134308, 0), V(-0.477545, -0.124761, 0), V(-0.482604, -0.114495, 0), V(-0.486712, -0.103416, 0), V(-0.489851, -0.091563, 0), V(-0.492335, -0.078989, 0), V(-0.493164, -0.070305, 0), V(-0.49359, -0.065854, 0)], [4, 1, 1, 1, 1, 1, 1, 1, 1, 1, 1, 1, 1, 1, 1, 1, 4], [0, 0.000011729, 0.000023035, 0.000034018, 0.000044756, 0.000055343, 0.000065928, 0.000076628, 0.000087492, 0.000098403, 0.00010934, 0.000120489, 0.000131867, 0.000143625, 0.00015587, 0.000168619, 0.000182025], False, 3, [1, 1, 1, 1, 1, 1, 1, 1, 1, 1, 1, 1, 1, 1, 1, 1, 1, 1, 1], False), False)
sketch4.addGeometry(Part.BSplineCurve([V(-0.269231, -0.079877, 0), V(-0.269322, -0.083288, 0), V(-0.269501, -0.090012, 0), V(-0.27108, -0.09987, 0), V(-0.273467, -0.109379, 0), V(-0.276888, -0.118569, 0), V(-0.281403, -0.127347, 0), V(-0.2869, -0.135724, 0), V(-0.293241, -0.143822, 0), V(-0.300577, -0.151416, 0), V(-0.308636, -0.15837, 0), V(-0.317149, -0.164531, 0), V(-0.326156, -0.169679, 0), V(-0.335619, -0.1739, 0), V(-0.345511, -0.17721, 0), V(-0.355852, -0.179504, 0), V(-0.366613, -0.180945, 0), V(-0.37396, -0.18114, 0), V(-0.377704, -0.181239, 0)], [4, 1, 1, 1, 1, 1, 1, 1, 1, 1, 1, 1, 1, 1, 1, 1, 4], [0, 0.000010229, 0.000020159, 0.000029876, 0.000039606, 0.000049505, 0.000059423, 0.000069622, 0.000080319, 0.000091042, 0.000101521, 0.000111795, 0.000122107, 0.000132559, 0.000143032, 0.000153841, 0.00016507], False, 3, [1, 1, 1, 1, 1, 1, 1, 1, 1, 1, 1, 1, 1, 1, 1, 1, 1, 1, 1], False), False)
sketch4.addGeometry(Part.BSplineCurve([V(-0.363782, 0.073368, 0), V(-0.359061, 0.06844, 0), V(-0.349993, 0.058974, 0), V(-0.337167, 0.045153, 0), V(-0.325647, 0.032332, 0), V(-0.315358, 0.020534, 0), V(-0.306525, 0.009587, 0), V(-0.298686, -0.000156, 0), V(-0.292405, -0.00912, 0), V(-0.285589, -0.019512, 0), V(-0.278987, -0.032199, 0), V(-0.273314, -0.047704, 0), V(-0.269854, -0.063665, 0), V(-0.26944, -0.074451, 0), V(-0.269231, -0.079877, 0)], [4, 1, 1, 1, 1, 1, 1, 1, 1, 1, 1, 1, 4], [0, 0.000020474, 0.000039327, 0.000056561, 0.000072184, 0.000086278, 0.000098762, 0.000109683, 0.000119101, 0.000136035, 0.000152448, 0.000168517, 0.00018478], False, 3, [1, 1, 1, 1, 1, 1, 1, 1, 1, 1, 1, 1, 1, 1, 1], False), False)
sketch4.addGeometry(Part.LineSegment(V(-0.363782, 0.073368, 0), V(-0.557692, 0.2803, 0)), False)
sketch4.addGeometry(Part.LineSegment(V(-0.557692, 0.2803, 0), V(-0.217949, 0.2803, 0)), False)
sketch4.addGeometry(Part.LineSegment(V(-0.217949, 0.2803, 0), V(-0.217949, 0.229017, 0)), False)
sketch4.addGeometry(Part.LineSegment(V(-0.217949, 0.229017, 0), V(-0.450621, 0.229017, 0)), False)
sketch4.addGeometry(Part.LineSegment(V(-0.450621, 0.229017, 0), V(-0.325521, 0.095504, 0)), False)
sketch4.addGeometry(Part.BSplineCurve([V(-0.224359, -0.083883, 0), V(-0.224601, -0.076919, 0), V(-0.22508, -0.063113, 0), V(-0.229182, -0.042826, 0), V(-0.235589, -0.023169, 0), V(-0.243303, -0.00735, 0), V(-0.251085, 0.005398, 0), V(-0.258097, 0.015893, 0), V(-0.266307, 0.027194, 0), V(-0.275832, 0.039262, 0), V(-0.286477, 0.052192, 0), V(-0.298337, 0.065977, 0), V(-0.311498, 0.080473, 0), V(-0.320734, 0.090374, 0), V(-0.325521, 0.095504, 0)], [4, 1, 1, 1, 1, 1, 1, 1, 1, 1, 1, 1, 4], [0, 0.000020874, 0.000041382, 0.000061843, 0.000082763, 0.000093997, 0.000106637, 0.000120621, 0.000135888, 0.000152753, 0.000170863, 0.000190435, 0.000211484], False, 3, [1, 1, 1, 1, 1, 1, 1, 1, 1, 1, 1, 1, 1, 1, 1], False), False)
sketch4.addGeometry(Part.BSplineCurve([V(-0.375401, -0.232521, 0), V(-0.369918, -0.232393, 0), V(-0.359145, -0.23214, 0), V(-0.343422, -0.229975, 0), V(-0.328454, -0.226582, 0), V(-0.31427, -0.221823, 0), V(-0.300983, -0.215425, 0), V(-0.288494, -0.20774, 0), V(-0.276654, -0.198851, 0), V(-0.265996, -0.188386, 0), V(-0.256209, -0.177215, 0), V(-0.247766, -0.165288, 0), V(-0.240535, -0.152969, 0), V(-0.234509, -0.140165, 0), V(-0.230072, -0.126755, 0), V(-0.226704, -0.112934, 0), V(-0.2248, -0.098559, 0), V(-0.224508, -0.08883, 0), V(-0.224359, -0.083883, 0)], [4, 1, 1, 1, 1, 1, 1, 1, 1, 1, 1, 1, 1, 1, 1, 1, 4], [0, 0.000016441, 0.000032306, 0.000047516, 0.000062435, 0.000077085, 0.000091652, 0.000106376, 0.000121393, 0.000136374, 0.000150882, 0.000165157, 0.000179183, 0.000193247, 0.000207458, 0.000221808, 0.000236648], False, 3, [1, 1, 1, 1, 1, 1, 1, 1, 1, 1, 1, 1, 1, 1, 1, 1, 1, 1, 1], False), False)
sketch4.addGeometry(Part.BSplineCurve([V(-0.538462, -0.065854, 0), V(-0.538169, -0.071807, 0), V(-0.537595, -0.083499, 0), V(-0.534905, -0.100545, 0), V(-0.531056, -0.116839, 0), V(-0.525615, -0.132249, 0), V(-0.518857, -0.146911, 0), V(-0.510752, -0.160768, 0), V(-0.501153, -0.173767, 0), V(-0.490267, -0.185787, 0), V(-0.478442, -0.196814, 0), V(-0.465684, -0.206336, 0), V(-0.452278, -0.214381, 0), V(-0.438264, -0.221107, 0), V(-0.423484, -0.226156, 0), V(-0.408072, -0.229902, 0), V(-0.391961, -0.232156, 0), V(-0.380983, -0.232398, 0), V(-0.375401, -0.232521, 0)], [4, 1, 1, 1, 1, 1, 1, 1, 1, 1, 1, 1, 1, 1, 1, 1, 4], [0, 0.000017869, 0.000035094, 0.000051686, 0.000068032, 0.000084031, 0.000100058, 0.000116104, 0.000132416, 0.000148647, 0.000164532, 0.000180078, 0.00019549, 0.000211074, 0.000226841, 0.000243017, 0.000259759], False, 3, [1, 1, 1, 1, 1, 1, 1, 1, 1, 1, 1, 1, 1, 1, 1, 1, 1, 1, 1], False), False)
sketch4.addConstraint(Sketcher.Constraint("Block", 1))
sketch4.addConstraint(Sketcher.Constraint("Block", 2))
sketch4.addConstraint(Sketcher.Constraint("Block", 3))
sketch4.addConstraint(Sketcher.Constraint("Block", 9))
sketch4.addConstraint(Sketcher.Constraint("Block", 10))
sketch4.addConstraint(Sketcher.Constraint("Block", 11))
sketch4.addConstraint(Sketcher.Constraint("Block", 12))
sketch4.addConstraint(Sketcher.Constraint("Block", 13))
sketch4.addConstraint(Sketcher.Constraint("Block", 14))
sketch4.addConstraint(Sketcher.Constraint("Block", 15))
sketch4.addConstraint(Sketcher.Constraint("Block", 16))
sketch4.addConstraint(Sketcher.Constraint("Block", 17))
sketch4.addConstraint(Sketcher.Constraint("Block", 18))
sketch4.addConstraint(Sketcher.Constraint("Block", 19))
sketch4.addConstraint(Sketcher.Constraint("Block", 20))
sketch4.addConstraint(Sketcher.Constraint("Block", 22))
sketch4.addConstraint(Sketcher.Constraint("Block", 23))
sketch4.addConstraint(Sketcher.Constraint("Block", 24))
sketch4.addConstraint(Sketcher.Constraint("Block", 30))
sketch4.addConstraint(Sketcher.Constraint("Block", 31))
sketch4.addConstraint(Sketcher.Constraint("Block", 32))
sketch4.addConstraint(Sketcher.Constraint("Coincident", 0, 2, 1, 2))
sketch4.addConstraint(Sketcher.Constraint("Coincident", 3, 1, 4, 1))
sketch4.addConstraint(Sketcher.Constraint("Coincident", 4, 2, 5, 1))
sketch4.addConstraint(Sketcher.Constraint("Coincident", 5, 2, 6, 1))
sketch4.addConstraint(Sketcher.Constraint("Coincident", 6, 2, 7, 1))
sketch4.addConstraint(Sketcher.Constraint("Coincident", 7, 2, 8, 1))
sketch4.addConstraint(Sketcher.Constraint("Coincident", 8, 2, 9, 2))
sketch4.addConstraint(Sketcher.Constraint("Coincident", 11, 1, 0, 1))
sketch4.addConstraint(Sketcher.Constraint("Coincident", 21, 2, 22, 2))
sketch4.addConstraint(Sketcher.Constraint("Coincident", 24, 1, 25, 1))
sketch4.addConstraint(Sketcher.Constraint("Coincident", 25, 2, 26, 1))
sketch4.addConstraint(Sketcher.Constraint("Coincident", 26, 2, 27, 1))
sketch4.addConstraint(Sketcher.Constraint("Coincident", 27, 2, 28, 1))
sketch4.addConstraint(Sketcher.Constraint("Coincident", 28, 2, 29, 1))
sketch4.addConstraint(Sketcher.Constraint("Coincident", 29, 2, 30, 2))
sketch4.addConstraint(Sketcher.Constraint("Coincident", 32, 1, 21, 1))
sketch4.addConstraint(Sketcher.Constraint("Horizontal", 5))
sketch4.addConstraint(Sketcher.Constraint("Vertical", 6))
sketch4.addConstraint(Sketcher.Constraint("Horizontal", 7))
sketch4.addConstraint(Sketcher.Constraint("Horizontal", 26))
sketch4.addConstraint(Sketcher.Constraint("Vertical", 27))
sketch4.addConstraint(Sketcher.Constraint("Horizontal", 28))
sketch4.addConstraint(Sketcher.Constraint("DistanceY", -1, 1, 4, 2, Q("0.2803 mm")))
sketch4.addConstraint(Sketcher.Constraint("DistanceY", -1, 1, 25, 2, Q("0.2803 mm")))
sketch4.addConstraint(Sketcher.Constraint("DistanceX", 7, 2, 8, 2, Q("0.1251 mm")))
sketch4.addConstraint(Sketcher.Constraint("DistanceX", 28, 2, 29, 2, Q("0.1251 mm")))
sketch4.addConstraint(Sketcher.Constraint("DistanceX", 5, 1, 5, 2, Q("0.339744 mm")))
sketch4.addConstraint(Sketcher.Constraint("DistanceX", 7, 2, 7, 1, Q("0.232672 mm")))
sketch4.addConstraint(Sketcher.Constraint("DistanceX", 26, 1, 26, 2, Q("0.339744 mm")))
sketch4.addConstraint(Sketcher.Constraint("DistanceX", 28, 2, 28, 1, Q("0.232672 mm")))
sketch4.addConstraint(Sketcher.Constraint("DistanceY", 6, 2, 6, 1, Q("0.051282 mm")))
sketch4.addConstraint(Sketcher.Constraint("DistanceY", 27, 2, 27, 1, Q("0.051282 mm")))
pad3 = body.newObject("PartDesign::Pad", "Pad002")
pad3.Profile = sketch4
pad3.Length = 0.04
pad3.Reversed = True

doc.recompute()
